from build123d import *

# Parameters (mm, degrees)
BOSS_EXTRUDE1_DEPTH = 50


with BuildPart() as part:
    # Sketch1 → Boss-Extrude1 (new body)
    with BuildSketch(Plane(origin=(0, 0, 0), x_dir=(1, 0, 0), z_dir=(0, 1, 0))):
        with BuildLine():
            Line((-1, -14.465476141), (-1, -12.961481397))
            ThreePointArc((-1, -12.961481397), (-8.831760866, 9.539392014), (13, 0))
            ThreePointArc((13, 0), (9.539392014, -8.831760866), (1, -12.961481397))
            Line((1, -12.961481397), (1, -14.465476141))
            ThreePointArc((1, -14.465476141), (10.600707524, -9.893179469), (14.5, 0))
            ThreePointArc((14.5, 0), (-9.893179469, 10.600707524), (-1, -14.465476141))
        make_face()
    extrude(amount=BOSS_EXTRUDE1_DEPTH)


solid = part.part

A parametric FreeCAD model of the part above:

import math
import FreeCAD as App
import Part
import Sketcher
from FreeCAD import Vector
Q = App.Units.Quantity

doc = App.newDocument("Part")
body = doc.addObject("PartDesign::Body", "Body")

# Sketch on XZ plane
sketch1 = body.newObject("Sketcher::SketchObject", "Sketch")
sketch1.AttachmentSupport = (doc.getObject("XZ_Plane"), [""])
sketch1.MapMode = "FlatFace"
sketch1.addGeometry(Part.LineSegment(Vector(-1, 14.5, 0), Vector(-1, 13, 0)), False)
sketch1.addGeometry(Part.ArcOfCircle(Part.Circle(Vector(0, 0, 0), Vector(0, 0, 1), 13), math.radians(94), math.radians(360)), False)
sketch1.addGeometry(Part.ArcOfCircle(Part.Circle(Vector(0, 0, 0), Vector(0, 0, 1), 13), math.radians(0), math.radians(86)), False)
sketch1.addGeometry(Part.LineSegment(Vector(1, 13, 0), Vector(1, 14.5, 0)), False)
sketch1.addGeometry(Part.ArcOfCircle(Part.Circle(Vector(0, 0, 0), Vector(0, 0, 1), 14.5), math.radians(0), math.radians(86)), False)
sketch1.addGeometry(Part.ArcOfCircle(Part.Circle(Vector(0, 0, 0), Vector(0, 0, 1), 14.5), math.radians(94), math.radians(360)), False)
sketch1.addConstraint(Sketcher.Constraint("Coincident", 0, 2, 1, 1))
sketch1.addConstraint(Sketcher.Constraint("Tangent", 1, 2, 2, 1))
sketch1.addConstraint(Sketcher.Constraint("Coincident", 2, 2, 3, 1))
sketch1.addConstraint(Sketcher.Constraint("Coincident", 3, 2, 4, 2))
sketch1.addConstraint(Sketcher.Constraint("Tangent", 4, 1, 5, 2))
sketch1.addConstraint(Sketcher.Constraint("Coincident", 5, 1, 0, 1))
sketch1.addConstraint(Sketcher.Constraint("Vertical", 0))
sketch1.addConstraint(Sketcher.Constraint("Vertical", 3))
sketch1.addConstraint(Sketcher.Constraint("Coincident", 1, 3, -1, 1))
sketch1.addConstraint(Sketcher.Constraint("Coincident", 4, 3, -1, 1))
sketch1.addConstraint(Sketcher.Constraint("Equal", 1, 2))
sketch1.addConstraint(Sketcher.Constraint("Equal", 4, 5))
sketch1.addConstraint(Sketcher.Constraint("PointOnObject", 1, 2, -1))
sketch1.addConstraint(Sketcher.Constraint("PointOnObject", 4, 1, -1))
sketch1.addConstraint(Sketcher.Constraint("Horizontal", 0, 2, 2, 2))
sketch1.addConstraint(Sketcher.Constraint("Radius", 1, Q("13 mm")))
sketch1.addConstraint(Sketcher.Constraint("Radius", 4, Q("14.5 mm")))
sketch1.addConstraint(Sketcher.Constraint("DistanceX", 0, 2, -1, 1, Q("1 mm")))
pad1 = body.newObject("PartDesign::Pad", "Pad")
pad1.Profile = sketch1
pad1.Length = 50
pad1.Reversed = True

doc.recompute()
